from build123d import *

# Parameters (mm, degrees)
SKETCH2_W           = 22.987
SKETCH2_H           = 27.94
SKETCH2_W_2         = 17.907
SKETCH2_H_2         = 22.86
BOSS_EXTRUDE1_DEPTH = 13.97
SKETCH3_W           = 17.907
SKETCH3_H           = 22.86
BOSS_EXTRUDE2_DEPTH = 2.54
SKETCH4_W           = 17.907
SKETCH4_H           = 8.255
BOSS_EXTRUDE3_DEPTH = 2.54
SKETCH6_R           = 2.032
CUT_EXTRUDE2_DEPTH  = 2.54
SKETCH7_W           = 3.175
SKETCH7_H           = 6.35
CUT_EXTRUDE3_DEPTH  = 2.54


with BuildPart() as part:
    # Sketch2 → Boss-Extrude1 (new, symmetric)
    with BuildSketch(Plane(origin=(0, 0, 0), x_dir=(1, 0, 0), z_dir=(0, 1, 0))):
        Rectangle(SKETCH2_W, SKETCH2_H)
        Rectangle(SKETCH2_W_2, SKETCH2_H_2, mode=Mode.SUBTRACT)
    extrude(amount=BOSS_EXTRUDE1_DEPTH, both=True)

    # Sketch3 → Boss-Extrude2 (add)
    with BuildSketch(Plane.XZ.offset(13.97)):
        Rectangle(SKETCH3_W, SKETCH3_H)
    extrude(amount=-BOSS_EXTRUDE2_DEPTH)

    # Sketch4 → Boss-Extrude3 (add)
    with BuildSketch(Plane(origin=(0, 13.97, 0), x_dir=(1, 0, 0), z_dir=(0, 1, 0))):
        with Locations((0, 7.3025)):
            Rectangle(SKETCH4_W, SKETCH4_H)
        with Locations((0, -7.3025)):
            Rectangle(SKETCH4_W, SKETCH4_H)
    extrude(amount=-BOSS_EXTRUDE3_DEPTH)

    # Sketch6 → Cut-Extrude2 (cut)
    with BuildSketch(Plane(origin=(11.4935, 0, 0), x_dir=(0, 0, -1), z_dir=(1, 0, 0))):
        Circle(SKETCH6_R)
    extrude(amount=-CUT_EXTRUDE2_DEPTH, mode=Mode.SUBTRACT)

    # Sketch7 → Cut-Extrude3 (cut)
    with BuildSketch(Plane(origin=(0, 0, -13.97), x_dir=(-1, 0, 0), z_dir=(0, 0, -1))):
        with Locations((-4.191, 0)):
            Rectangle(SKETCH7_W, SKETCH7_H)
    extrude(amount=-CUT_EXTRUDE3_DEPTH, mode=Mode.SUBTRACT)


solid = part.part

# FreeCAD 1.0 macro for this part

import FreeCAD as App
import Part
import Sketcher
from FreeCAD import Vector
Q = App.Units.Quantity

doc = App.newDocument("Part")
params = doc.addObject("Spreadsheet::Sheet", "Params")
for row, (alias, value) in enumerate([
    ("sketch1_height", "1.1 in"),
    ("sketch1_height2", "0.9 in"),
    ("sketch1_width", "0.905 in"),
    ("pad1_length", "1.1 in"),
    ("sketch2_height", "0.9 in"),
    ("sketch2_width", "0.705 in"),
    ("pad2_length", "0.1 in"),
    ("sketch3_width", "0.705 in"),
    ("sketch3_height", "0.325 in"),
    ("pad3_length", "0.1 in"),
    ("sketch4_diameter", "0.16 in"),
    ("pocket1_length", "0.1 in"),
    ("sketch5_height", "0.25 in"),
    ("sketch5_width", "0.125 in"),
    ("pocket2_length", "0.1 in"),
], start=1):
    params.set(f"A{row}", alias)
    params.set(f"B{row}", "=" + value)
    params.setAlias(f"B{row}", alias)

body = doc.addObject("PartDesign::Body", "Body")

sketch1 = body.newObject("Sketcher::SketchObject", "Sketch")
sketch1.AttachmentSupport = (doc.getObject("XZ_Plane"), [""])
sketch1.MapMode = "FlatFace"
sketch1.addGeometry([
    Part.LineSegment(Vector(-11, -14, 0), Vector(-11, 14, 0)),
    Part.LineSegment(Vector(-11, 14, 0), Vector(11, 14, 0)),
    Part.LineSegment(Vector(11, 14, 0), Vector(11, -14, 0)),
    Part.LineSegment(Vector(11, -14, 0), Vector(-11, -14, 0)),
    Part.LineSegment(Vector(9, 11, 0), Vector(-9, 11, 0)),
    Part.LineSegment(Vector(-9, 11, 0), Vector(-9, -11, 0)),
    Part.LineSegment(Vector(-9, -11, 0), Vector(9, -11, 0)),
    Part.LineSegment(Vector(9, -11, 0), Vector(9, 11, 0)),
], False)
sketch1.addConstraint([
    Sketcher.Constraint("Coincident", 0, 2, 1, 1),
    Sketcher.Constraint("Coincident", 1, 2, 2, 1),
    Sketcher.Constraint("Coincident", 2, 2, 3, 1),
    Sketcher.Constraint("Coincident", 3, 2, 0, 1),
    Sketcher.Constraint("Coincident", 4, 2, 5, 1),
    Sketcher.Constraint("Coincident", 5, 2, 6, 1),
    Sketcher.Constraint("Coincident", 6, 2, 7, 1),
    Sketcher.Constraint("Coincident", 7, 2, 4, 1),
    Sketcher.Constraint("Vertical", 0),
    Sketcher.Constraint("Horizontal", 1),
    Sketcher.Constraint("Vertical", 2),
    Sketcher.Constraint("Horizontal", 3),
    Sketcher.Constraint("Horizontal", 4),
    Sketcher.Constraint("Vertical", 5),
    Sketcher.Constraint("Horizontal", 6),
    Sketcher.Constraint("Vertical", 7),
    Sketcher.Constraint("Symmetric", 0, 2, 2, 2, -1, 1),
    Sketcher.Constraint("Symmetric", 4, 2, 6, 2, -1, 1),
    Sketcher.Constraint("DistanceY", 0, 1, 0, 2, Q("1.1 in")),
    Sketcher.Constraint("DistanceY", 5, 2, 5, 1, Q("0.9 in")),
    Sketcher.Constraint("DistanceX", 0, 2, 4, 2, Q("0.1 in")),
    Sketcher.Constraint("DistanceX", 1, 1, 1, 2, Q("0.905 in")),
])
sketch1.setExpression("Constraints[18]", "Params.sketch1_height")
sketch1.setExpression("Constraints[19]", "Params.sketch1_height2")
sketch1.setExpression("Constraints[21]", "Params.sketch1_width")
pad1 = body.newObject("PartDesign::Pad", "Pad")
pad1.Profile = sketch1
pad1.setExpression("Length", "Params.pad1_length")
pad1.Midplane = True

sketch2 = body.newObject("Sketcher::SketchObject", "Sketch001")
sketch2.AttachmentSupport = (doc.getObject("XZ_Plane"), [""])
sketch2.MapMode = "FlatFace"
sketch2.AttachmentOffset = App.Placement(Vector(0, 0, 0.55 * 25.4), App.Rotation())
sketch2.addGeometry([
    Part.LineSegment(Vector(-9, 11, 0), Vector(-9, -11, 0)),
    Part.LineSegment(Vector(-9, -11, 0), Vector(9, -11, 0)),
    Part.LineSegment(Vector(9, -11, 0), Vector(9, 11, 0)),
    Part.LineSegment(Vector(9, 11, 0), Vector(-9, 11, 0)),
], False)
sketch2.addConstraint([
    Sketcher.Constraint("Coincident", 0, 2, 1, 1),
    Sketcher.Constraint("Coincident", 1, 2, 2, 1),
    Sketcher.Constraint("Coincident", 2, 2, 3, 1),
    Sketcher.Constraint("Coincident", 3, 2, 0, 1),
    Sketcher.Constraint("Vertical", 0),
    Sketcher.Constraint("Horizontal", 1),
    Sketcher.Constraint("Vertical", 2),
    Sketcher.Constraint("Horizontal", 3),
    Sketcher.Constraint("Symmetric", 0, 2, 2, 2, -1, 1),
    Sketcher.Constraint("DistanceY", 0, 2, 0, 1, Q("0.9 in")),
    Sketcher.Constraint("DistanceX", 1, 1, 1, 2, Q("0.705 in")),
])
sketch2.setExpression("Constraints[9]", "Params.sketch2_height")
sketch2.setExpression("Constraints[10]", "Params.sketch2_width")
pad2 = body.newObject("PartDesign::Pad", "Pad001")
pad2.Profile = sketch2
pad2.setExpression("Length", "Params.pad2_length")
pad2.Reversed = True

sketch3 = body.newObject("Sketcher::SketchObject", "Sketch002")
sketch3.AttachmentSupport = (doc.getObject("XZ_Plane"), [""])
sketch3.MapMode = "FlatFace"
sketch3.AttachmentOffset = App.Placement(Vector(0, 0, -0.55 * 25.4), App.Rotation())
sketch3.addGeometry([
    Part.LineSegment(Vector(-9, -11, 0), Vector(-9, -3, 0)),
    Part.LineSegment(Vector(-9, -3, 0), Vector(9, -3, 0)),
    Part.LineSegment(Vector(9, -3, 0), Vector(9, -11, 0)),
    Part.LineSegment(Vector(9, -11, 0), Vector(-9, -11, 0)),
    Part.LineSegment(Vector(-9, 3, 0), Vector(-9, 11, 0)),
    Part.LineSegment(Vector(-9, 11, 0), Vector(9, 11, 0)),
    Part.LineSegment(Vector(9, 11, 0), Vector(9, 3, 0)),
    Part.LineSegment(Vector(9, 3, 0), Vector(-9, 3, 0)),
], False)
sketch3.addConstraint([
    Sketcher.Constraint("Coincident", 0, 2, 1, 1),
    Sketcher.Constraint("Coincident", 1, 2, 2, 1),
    Sketcher.Constraint("Coincident", 2, 2, 3, 1),
    Sketcher.Constraint("Coincident", 3, 2, 0, 1),
    Sketcher.Constraint("Coincident", 4, 2, 5, 1),
    Sketcher.Constraint("Coincident", 5, 2, 6, 1),
    Sketcher.Constraint("Coincident", 6, 2, 7, 1),
    Sketcher.Constraint("Coincident", 7, 2, 4, 1),
    Sketcher.Constraint("Vertical", 0),
    Sketcher.Constraint("Horizontal", 1),
    Sketcher.Constraint("Vertical", 2),
    Sketcher.Constraint("Horizontal", 3),
    Sketcher.Constraint("Vertical", 4),
    Sketcher.Constraint("Horizontal", 5),
    Sketcher.Constraint("Vertical", 6),
    Sketcher.Constraint("Horizontal", 7),
    Sketcher.Constraint("Symmetric", 2, 2, 4, 2, -1, 1),
    Sketcher.Constraint("Symmetric", 0, 2, 6, 2, -1, 1),
    Sketcher.Constraint("Vertical", 3, 2, 4, 2),
    Sketcher.Constraint("DistanceY", 3, 2, 4, 2, Q("0.9 in")),
    Sketcher.Constraint("DistanceX", 1, 1, 1, 2, Q("0.705 in")),
    Sketcher.Constraint("DistanceY", 0, 1, 0, 2, Q("0.325 in")),
])
sketch3.setExpression("Constraints[20]", "Params.sketch3_width")
sketch3.setExpression("Constraints[21]", "Params.sketch3_height")
pad3 = body.newObject("PartDesign::Pad", "Pad002")
pad3.Profile = sketch3
pad3.setExpression("Length", "Params.pad3_length")

sketch4 = body.newObject("Sketcher::SketchObject", "Sketch003")
sketch4.AttachmentSupport = (doc.getObject("YZ_Plane"), [""])
sketch4.MapMode = "FlatFace"
sketch4.AttachmentOffset = App.Placement(Vector(0, 0, 0.4525 * 25.4), App.Rotation())
sketch4.addGeometry(Part.Circle(Vector(0, 0, 0), Vector(0, 0, 1), 2), False)
sketch4.addConstraint([
    Sketcher.Constraint("Coincident", 0, 3, -1, 1),
    Sketcher.Constraint("Diameter", 0, Q("0.16 in")),
])
sketch4.setExpression("Constraints[1]", "Params.sketch4_diameter")
pocket1 = body.newObject("PartDesign::Pocket", "Pocket")
pocket1.Profile = sketch4
pocket1.setExpression("Length", "Params.pocket1_length")

sketch5 = body.newObject("Sketcher::SketchObject", "Sketch004")
sketch5.AttachmentSupport = (doc.getObject("XY_Plane"), [""])
sketch5.MapMode = "FlatFace"
sketch5.AttachmentOffset = App.Placement(Vector(0, 0, -0.55 * 25.4), App.Rotation())
sketch5.addGeometry([
    Part.LineSegment(Vector(5.8, 3.2, 0), Vector(5.8, -3.2, 0)),
    Part.LineSegment(Vector(5.8, -3.2, 0), Vector(2.6, -3.2, 0)),
    Part.LineSegment(Vector(2.6, -3.2, 0), Vector(2.6, 3.2, 0)),
    Part.LineSegment(Vector(2.6, 3.2, 0), Vector(5.8, 3.2, 0)),
], False)
sketch5.addConstraint([
    Sketcher.Constraint("Coincident", 0, 2, 1, 1),
    Sketcher.Constraint("Coincident", 1, 2, 2, 1),
    Sketcher.Constraint("Coincident", 2, 2, 3, 1),
    Sketcher.Constraint("Coincident", 3, 2, 0, 1),
    Sketcher.Constraint("Vertical", 0),
    Sketcher.Constraint("Horizontal", 1),
    Sketcher.Constraint("Vertical", 2),
    Sketcher.Constraint("Horizontal", 3),
    Sketcher.Constraint("DistanceY", 0, 2, 0, 1, Q("0.25 in")),
    Sketcher.Constraint("DistanceX", 1, 2, 1, 1, Q("0.125 in")),
    Sketcher.Constraint("DistanceY", 0, 2, -1, 1, Q("0.125 in")),
    Sketcher.Constraint("DistanceX", -1, 1, 0, 2, Q("0.2275 in")),
])
sketch5.setExpression("Constraints[8]", "Params.sketch5_height")
sketch5.setExpression("Constraints[9]", "Params.sketch5_width")
pocket2 = body.newObject("PartDesign::Pocket", "Pocket001")
pocket2.Profile = sketch5
pocket2.setExpression("Length", "Params.pocket2_length")
pocket2.Reversed = True

doc.recompute()
